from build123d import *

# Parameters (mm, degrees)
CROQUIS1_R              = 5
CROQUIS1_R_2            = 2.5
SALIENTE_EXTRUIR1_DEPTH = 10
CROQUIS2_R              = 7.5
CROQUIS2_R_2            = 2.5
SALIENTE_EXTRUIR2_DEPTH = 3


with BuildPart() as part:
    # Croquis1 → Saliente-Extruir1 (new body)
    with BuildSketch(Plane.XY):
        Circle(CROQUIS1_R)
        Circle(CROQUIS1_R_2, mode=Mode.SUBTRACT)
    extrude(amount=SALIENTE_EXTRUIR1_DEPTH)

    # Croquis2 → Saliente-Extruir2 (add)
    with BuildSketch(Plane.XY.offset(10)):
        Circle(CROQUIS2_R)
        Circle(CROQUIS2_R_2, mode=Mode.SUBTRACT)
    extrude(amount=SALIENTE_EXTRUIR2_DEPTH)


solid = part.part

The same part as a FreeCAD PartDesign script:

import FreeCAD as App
import Part
import Sketcher
Q = App.Units.Quantity

doc = App.newDocument("Part")
params = doc.addObject("Spreadsheet::Sheet", "Params")
for row, (alias, value) in enumerate([
    ("sketch1_diameter", "10 mm"),
    ("sketch1_diameter2", "5 mm"),
    ("pad1_length", "10 mm"),
    ("sketch2_diameter", "15 mm"),
    ("sketch2_diameter2", "5 mm"),
    ("pad2_length", "3 mm"),
], start=1):
    params.set(f"A{row}", alias)
    params.set(f"B{row}", "=" + value)
    params.setAlias(f"B{row}", alias)

body = doc.addObject("PartDesign::Body", "Body")

# Sketch on XY plane
sketch1 = body.newObject("Sketcher::SketchObject", "Sketch")
sketch1.AttachmentSupport = (doc.getObject("XY_Plane"), [""])
sketch1.MapMode = "FlatFace"
sketch1.addGeometry([
    Part.Circle(App.Vector(0, 0, 0), App.Vector(0, 0, 1), 5),
    Part.Circle(App.Vector(0, 0, 0), App.Vector(0, 0, 1), 2.5),
], False)
sketch1.addConstraint([
    Sketcher.Constraint("Coincident", 0, 3, -1, 1),
    Sketcher.Constraint("Coincident", 1, 3, -1, 1),
    Sketcher.Constraint("Diameter", 0, Q("10 mm")),
    Sketcher.Constraint("Diameter", 1, Q("5 mm")),
])
sketch1.setExpression("Constraints[2]", "Params.sketch1_diameter")
sketch1.setExpression("Constraints[3]", "Params.sketch1_diameter2")
pad1 = body.newObject("PartDesign::Pad", "Pad")
pad1.Profile = sketch1
pad1.setExpression("Length", "Params.pad1_length")

# Sketch on XY plane
sketch2 = body.newObject("Sketcher::SketchObject", "Sketch001")
sketch2.AttachmentSupport = (doc.getObject("XY_Plane"), [""])
sketch2.MapMode = "FlatFace"
sketch2.AttachmentOffset = App.Placement(App.Vector(0, 0, 10), App.Rotation())
sketch2.addGeometry([
    Part.Circle(App.Vector(0, 0, 0), App.Vector(0, 0, 1), 7.5),
    Part.Circle(App.Vector(0, 0, 0), App.Vector(0, 0, 1), 2.5),
], False)
sketch2.addConstraint([
    Sketcher.Constraint("Coincident", 0, 3, -1, 1),
    Sketcher.Constraint("Coincident", 1, 3, -1, 1),
    Sketcher.Constraint("Diameter", 0, Q("15 mm")),
    Sketcher.Constraint("Diameter", 1, Q("5 mm")),
])
sketch2.setExpression("Constraints[2]", "Params.sketch2_diameter")
sketch2.setExpression("Constraints[3]", "Params.sketch2_diameter2")
pad2 = body.newObject("PartDesign::Pad", "Pad001")
pad2.Profile = sketch2
pad2.setExpression("Length", "Params.pad2_length")

doc.recompute()
